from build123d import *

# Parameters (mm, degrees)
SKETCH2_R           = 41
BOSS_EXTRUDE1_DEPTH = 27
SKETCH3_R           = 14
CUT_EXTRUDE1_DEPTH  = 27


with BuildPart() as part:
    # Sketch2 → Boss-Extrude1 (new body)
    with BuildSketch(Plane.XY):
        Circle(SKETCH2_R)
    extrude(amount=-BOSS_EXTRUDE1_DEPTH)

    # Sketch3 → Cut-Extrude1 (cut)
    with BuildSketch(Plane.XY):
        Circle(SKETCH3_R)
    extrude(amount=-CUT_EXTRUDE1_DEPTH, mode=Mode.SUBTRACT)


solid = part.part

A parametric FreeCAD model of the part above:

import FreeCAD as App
import Part
import Sketcher
from FreeCAD import Vector

doc = App.newDocument("Part")
body = doc.addObject("PartDesign::Body", "Body")

# Sketch on XY plane
sketch1 = body.newObject("Sketcher::SketchObject", "Sketch")
sketch1.AttachmentSupport = (doc.getObject("XY_Plane"), [""])
sketch1.MapMode = "FlatFace"
sketch1.addGeometry(Part.Circle(Vector(0, 0, 0), Vector(0, 0, 1), 41), False)
sketch1.addConstraint(Sketcher.Constraint("Coincident", 0, 3, -1, 1))
sketch1.addConstraint(Sketcher.Constraint("Diameter", 0, 82.0))
pad1 = body.newObject("PartDesign::Pad", "Pad")
pad1.Profile = sketch1
pad1.Length = 27
pad1.Reversed = True

# Sketch on XY plane
sketch2 = body.newObject("Sketcher::SketchObject", "Sketch001")
sketch2.AttachmentSupport = (doc.getObject("XY_Plane"), [""])
sketch2.MapMode = "FlatFace"
sketch2.addGeometry(Part.Circle(Vector(0, 0, 0), Vector(0, 0, 1), 14), False)
sketch2.addConstraint(Sketcher.Constraint("Coincident", 0, 3, -1, 1))
sketch2.addConstraint(Sketcher.Constraint("Diameter", 0, 28.0))
pocket1 = body.newObject("PartDesign::Pocket", "Pocket")
pocket1.Profile = sketch2
pocket1.Length = 27

doc.recompute()
